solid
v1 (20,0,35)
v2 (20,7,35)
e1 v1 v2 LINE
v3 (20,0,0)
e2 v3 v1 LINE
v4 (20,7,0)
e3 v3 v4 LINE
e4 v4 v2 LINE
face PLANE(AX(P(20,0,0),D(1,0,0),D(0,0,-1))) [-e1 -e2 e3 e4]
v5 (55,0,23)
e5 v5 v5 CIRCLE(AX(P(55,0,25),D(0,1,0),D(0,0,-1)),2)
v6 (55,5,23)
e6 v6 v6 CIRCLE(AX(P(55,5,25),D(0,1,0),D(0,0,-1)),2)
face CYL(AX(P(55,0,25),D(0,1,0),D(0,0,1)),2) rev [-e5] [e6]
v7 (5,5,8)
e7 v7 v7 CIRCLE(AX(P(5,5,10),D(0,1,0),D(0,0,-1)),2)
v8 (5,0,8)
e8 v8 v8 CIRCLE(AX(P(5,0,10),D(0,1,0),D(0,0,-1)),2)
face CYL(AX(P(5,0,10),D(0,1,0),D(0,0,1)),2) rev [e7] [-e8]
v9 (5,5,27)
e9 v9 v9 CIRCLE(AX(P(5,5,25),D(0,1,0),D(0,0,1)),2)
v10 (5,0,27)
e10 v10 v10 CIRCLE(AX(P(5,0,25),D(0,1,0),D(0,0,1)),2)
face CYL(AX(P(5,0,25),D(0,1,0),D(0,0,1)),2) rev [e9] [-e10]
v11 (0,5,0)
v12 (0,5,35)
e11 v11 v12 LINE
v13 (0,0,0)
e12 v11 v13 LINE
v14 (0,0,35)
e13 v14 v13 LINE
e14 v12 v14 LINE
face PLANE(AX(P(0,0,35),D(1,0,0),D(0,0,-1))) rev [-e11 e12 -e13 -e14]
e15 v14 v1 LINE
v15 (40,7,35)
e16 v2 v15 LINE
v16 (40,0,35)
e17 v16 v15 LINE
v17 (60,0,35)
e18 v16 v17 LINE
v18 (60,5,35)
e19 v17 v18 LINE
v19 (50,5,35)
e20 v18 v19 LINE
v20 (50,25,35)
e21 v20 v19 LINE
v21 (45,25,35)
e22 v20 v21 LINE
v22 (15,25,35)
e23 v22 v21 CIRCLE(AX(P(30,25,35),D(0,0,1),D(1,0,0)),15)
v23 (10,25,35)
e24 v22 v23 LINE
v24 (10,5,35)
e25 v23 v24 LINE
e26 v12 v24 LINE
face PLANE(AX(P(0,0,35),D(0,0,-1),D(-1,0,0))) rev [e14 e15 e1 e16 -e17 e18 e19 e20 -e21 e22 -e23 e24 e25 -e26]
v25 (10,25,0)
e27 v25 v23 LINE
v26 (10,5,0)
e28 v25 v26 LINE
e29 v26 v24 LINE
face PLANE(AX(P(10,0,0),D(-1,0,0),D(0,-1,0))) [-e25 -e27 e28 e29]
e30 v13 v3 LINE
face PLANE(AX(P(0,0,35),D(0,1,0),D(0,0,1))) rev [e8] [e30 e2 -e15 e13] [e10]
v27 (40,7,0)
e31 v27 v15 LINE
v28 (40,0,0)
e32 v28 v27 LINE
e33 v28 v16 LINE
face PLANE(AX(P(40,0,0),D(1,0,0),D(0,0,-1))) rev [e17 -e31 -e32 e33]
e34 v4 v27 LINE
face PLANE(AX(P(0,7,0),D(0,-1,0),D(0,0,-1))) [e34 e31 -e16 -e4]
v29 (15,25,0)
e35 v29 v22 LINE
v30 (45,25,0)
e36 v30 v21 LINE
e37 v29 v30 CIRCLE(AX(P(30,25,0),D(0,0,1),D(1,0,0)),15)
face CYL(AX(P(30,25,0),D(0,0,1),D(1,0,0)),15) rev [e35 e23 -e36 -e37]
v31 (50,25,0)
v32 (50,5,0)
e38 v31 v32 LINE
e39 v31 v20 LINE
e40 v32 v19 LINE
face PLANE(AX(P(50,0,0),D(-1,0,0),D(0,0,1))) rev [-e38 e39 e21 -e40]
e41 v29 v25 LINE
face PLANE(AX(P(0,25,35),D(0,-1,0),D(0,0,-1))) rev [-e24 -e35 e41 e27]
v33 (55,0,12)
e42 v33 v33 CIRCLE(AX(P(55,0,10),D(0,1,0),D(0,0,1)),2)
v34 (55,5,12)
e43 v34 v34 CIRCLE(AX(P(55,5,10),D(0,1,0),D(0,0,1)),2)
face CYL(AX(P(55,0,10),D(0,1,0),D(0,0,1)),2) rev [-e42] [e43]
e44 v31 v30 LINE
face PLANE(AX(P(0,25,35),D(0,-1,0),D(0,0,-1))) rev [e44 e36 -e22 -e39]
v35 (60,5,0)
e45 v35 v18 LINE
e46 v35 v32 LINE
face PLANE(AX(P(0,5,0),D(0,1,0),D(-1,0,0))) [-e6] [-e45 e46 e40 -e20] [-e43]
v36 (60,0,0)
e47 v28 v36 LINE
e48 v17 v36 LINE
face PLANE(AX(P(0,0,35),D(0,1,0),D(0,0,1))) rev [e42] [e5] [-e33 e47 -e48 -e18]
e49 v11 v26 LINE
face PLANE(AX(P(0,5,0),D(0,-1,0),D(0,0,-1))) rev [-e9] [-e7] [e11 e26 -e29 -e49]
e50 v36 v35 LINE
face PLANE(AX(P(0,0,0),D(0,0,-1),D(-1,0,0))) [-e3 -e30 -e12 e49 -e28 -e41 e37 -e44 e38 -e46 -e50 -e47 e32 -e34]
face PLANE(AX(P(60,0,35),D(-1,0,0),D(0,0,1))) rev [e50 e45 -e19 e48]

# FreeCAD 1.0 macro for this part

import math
import FreeCAD as App
import Part
import Sketcher

doc = App.newDocument("Part")
body = doc.addObject("PartDesign::Body", "Body")

sketch1 = doc.addObject("Sketcher::SketchObject", "Sketch")
body.addObject(sketch1)
sketch1.AttachmentSupport = (doc.XY_Plane, [""])
sketch1.MapMode = "FlatFace"
sketch1.addGeometry(Part.LineSegment(App.Vector(0, 25, 0), App.Vector(0, 0, 0)), False)
sketch1.addGeometry(Part.LineSegment(App.Vector(0, 0, 0), App.Vector(60, 0, 0)), False)
sketch1.addGeometry(Part.LineSegment(App.Vector(60, 0, 0), App.Vector(60, 25, 0)), False)
sketch1.addGeometry(Part.LineSegment(App.Vector(60, 25, 0), App.Vector(0, 25, 0)), False)
sketch1.addConstraint(Sketcher.Constraint("Coincident", 0, 2, 1, 1))
sketch1.addConstraint(Sketcher.Constraint("Coincident", 1, 2, 2, 1))
sketch1.addConstraint(Sketcher.Constraint("Coincident", 2, 2, 3, 1))
sketch1.addConstraint(Sketcher.Constraint("Coincident", 3, 2, 0, 1))
sketch1.addConstraint(Sketcher.Constraint("Vertical", 0))
sketch1.addConstraint(Sketcher.Constraint("Horizontal", 1))
sketch1.addConstraint(Sketcher.Constraint("Vertical", 2))
sketch1.addConstraint(Sketcher.Constraint("Horizontal", 3))
sketch1.addConstraint(Sketcher.Constraint("Coincident", 0, 2, -1, 1))
sketch1.addConstraint(Sketcher.Constraint("DistanceX", 1, 1, 1, 2, 60.0))
sketch1.addConstraint(Sketcher.Constraint("DistanceY", 0, 2, 0, 1, 25.0))
pad1 = doc.addObject("PartDesign::Pad", "Pad")
body.addObject(pad1)
pad1.Profile = sketch1
pad1.Length = 35

sketch2 = doc.addObject("Sketcher::SketchObject", "Sketch001")
body.addObject(sketch2)
sketch2.AttachmentSupport = (doc.XY_Plane, [""])
sketch2.MapMode = "FlatFace"
sketch2.AttachmentOffset = App.Placement(App.Vector(0, 0, 35), App.Rotation())
sketch2.addGeometry(Part.LineSegment(App.Vector(50, 25, 0), App.Vector(50, 5, 0)), False)
sketch2.addGeometry(Part.LineSegment(App.Vector(50, 5, 0), App.Vector(60, 5, 0)), False)
sketch2.addGeometry(Part.LineSegment(App.Vector(60, 5, 0), App.Vector(60, 25, 0)), False)
sketch2.addGeometry(Part.LineSegment(App.Vector(60, 25, 0), App.Vector(50, 25, 0)), False)
sketch2.addGeometry(Part.LineSegment(App.Vector(45, 25, 0), App.Vector(15, 25, 0)), False)
sketch2.addGeometry(Part.ArcOfCircle(Part.Circle(App.Vector(30, 25, 0), App.Vector(0, 0, 1), 15), math.radians(180), math.radians(360)), False)
sketch2.addGeometry(Part.LineSegment(App.Vector(0, 25, 0), App.Vector(0, 5, 0)), False)
sketch2.addGeometry(Part.LineSegment(App.Vector(0, 5, 0), App.Vector(10, 5, 0)), False)
sketch2.addGeometry(Part.LineSegment(App.Vector(10, 5, 0), App.Vector(10, 25, 0)), False)
sketch2.addGeometry(Part.LineSegment(App.Vector(10, 25, 0), App.Vector(0, 25, 0)), False)
sketch2.addGeometry(Part.LineSegment(App.Vector(20, 7, 0), App.Vector(20, 0, 0)), False)
sketch2.addGeometry(Part.LineSegment(App.Vector(20, 0, 0), App.Vector(40, 0, 0)), False)
sketch2.addGeometry(Part.LineSegment(App.Vector(40, 0, 0), App.Vector(40, 7, 0)), False)
sketch2.addGeometry(Part.LineSegment(App.Vector(40, 7, 0), App.Vector(20, 7, 0)), False)
sketch2.addConstraint(Sketcher.Constraint("Coincident", 0, 2, 1, 1))
sketch2.addConstraint(Sketcher.Constraint("Coincident", 1, 2, 2, 1))
sketch2.addConstraint(Sketcher.Constraint("Coincident", 2, 2, 3, 1))
sketch2.addConstraint(Sketcher.Constraint("Coincident", 3, 2, 0, 1))
sketch2.addConstraint(Sketcher.Constraint("Coincident", 4, 1, 5, 2))
sketch2.addConstraint(Sketcher.Constraint("Coincident", 5, 1, 4, 2))
sketch2.addConstraint(Sketcher.Constraint("Coincident", 6, 2, 7, 1))
sketch2.addConstraint(Sketcher.Constraint("Coincident", 7, 2, 8, 1))
sketch2.addConstraint(Sketcher.Constraint("Coincident", 8, 2, 9, 1))
sketch2.addConstraint(Sketcher.Constraint("Coincident", 9, 2, 6, 1))
sketch2.addConstraint(Sketcher.Constraint("Coincident", 10, 2, 11, 1))
sketch2.addConstraint(Sketcher.Constraint("Coincident", 11, 2, 12, 1))
sketch2.addConstraint(Sketcher.Constraint("Coincident", 12, 2, 13, 1))
sketch2.addConstraint(Sketcher.Constraint("Coincident", 13, 2, 10, 1))
sketch2.addConstraint(Sketcher.Constraint("Vertical", 0))
sketch2.addConstraint(Sketcher.Constraint("Horizontal", 1))
sketch2.addConstraint(Sketcher.Constraint("Vertical", 2))
sketch2.addConstraint(Sketcher.Constraint("Horizontal", 3))
sketch2.addConstraint(Sketcher.Constraint("Horizontal", 4))
sketch2.addConstraint(Sketcher.Constraint("Vertical", 6))
sketch2.addConstraint(Sketcher.Constraint("Horizontal", 7))
sketch2.addConstraint(Sketcher.Constraint("Vertical", 8))
sketch2.addConstraint(Sketcher.Constraint("Horizontal", 9))
sketch2.addConstraint(Sketcher.Constraint("Vertical", 10))
sketch2.addConstraint(Sketcher.Constraint("Horizontal", 11))
sketch2.addConstraint(Sketcher.Constraint("Vertical", 12))
sketch2.addConstraint(Sketcher.Constraint("Horizontal", 13))
sketch2.addConstraint(Sketcher.Constraint("PointOnObject", 6, 2, -2))
sketch2.addConstraint(Sketcher.Constraint("PointOnObject", 10, 2, -1))
sketch2.addConstraint(Sketcher.Constraint("Horizontal", 5, 3, 2, 2))
sketch2.addConstraint(Sketcher.Constraint("Horizontal", 3, 2, 4, 1))
sketch2.addConstraint(Sketcher.Constraint("Horizontal", 1, 2, 6, 2))
sketch2.addConstraint(Sketcher.Constraint("Horizontal", 5, 1, 8, 2))
sketch2.addConstraint(Sketcher.Constraint("Equal", 3, 7))
sketch2.addConstraint(Sketcher.Constraint("Equal", 13, 0))
sketch2.addConstraint(Sketcher.Constraint("Radius", 5, 15.0))
sketch2.addConstraint(Sketcher.Constraint("DistanceX", 1, 1, 1, 2, 10.0))
sketch2.addConstraint(Sketcher.Constraint("DistanceX", 11, 1, 11, 2, 20.0))
sketch2.addConstraint(Sketcher.Constraint("DistanceY", 10, 2, 10, 1, 7.0))
sketch2.addConstraint(Sketcher.Constraint("DistanceX", -1, 1, 5, 3, 30.0))
sketch2.addConstraint(Sketcher.Constraint("DistanceY", -1, 1, 5, 3, 25.0))
sketch2.addConstraint(Sketcher.Constraint("DistanceX", -1, 1, 0, 2, 50.0))
sketch2.addConstraint(Sketcher.Constraint("DistanceX", -1, 1, 10, 2, 20.0))
pocket1 = doc.addObject("PartDesign::Pocket", "Pocket")
body.addObject(pocket1)
pocket1.Profile = sketch2
pocket1.Type = "ThroughAll"

sketch3 = doc.addObject("Sketcher::SketchObject", "Sketch002")
body.addObject(sketch3)
sketch3.AttachmentSupport = (doc.XZ_Plane, [""])
sketch3.MapMode = "FlatFace"
sketch3.AttachmentOffset = App.Placement(App.Vector(0, 0, -5), App.Rotation())
sketch3.addGeometry(Part.Circle(App.Vector(5, 25, 0), App.Vector(0, 0, 1), 2), False)
sketch3.addGeometry(Part.Circle(App.Vector(5, 10, 0), App.Vector(0, 0, 1), 2), False)
sketch3.addGeometry(Part.Circle(App.Vector(55, 10, 0), App.Vector(0, 0, 1), 2), False)
sketch3.addGeometry(Part.Circle(App.Vector(55, 25, 0), App.Vector(0, 0, 1), 2), False)
sketch3.addConstraint(Sketcher.Constraint("Equal", 0, 1))
sketch3.addConstraint(Sketcher.Constraint("Equal", 1, 2))
sketch3.addConstraint(Sketcher.Constraint("Equal", 2, 3))
sketch3.addConstraint(Sketcher.Constraint("Horizontal", 1, 3, 2, 3))
sketch3.addConstraint(Sketcher.Constraint("Horizontal", 0, 3, 3, 3))
sketch3.addConstraint(Sketcher.Constraint("Vertical", 0, 3, 1, 3))
sketch3.addConstraint(Sketcher.Constraint("Vertical", 2, 3, 3, 3))
sketch3.addConstraint(Sketcher.Constraint("Diameter", 0, 4.0))
sketch3.addConstraint(Sketcher.Constraint("DistanceX", -1, 1, 0, 3, 5.0))
sketch3.addConstraint(Sketcher.Constraint("DistanceY", -1, 1, 0, 3, 25.0))
sketch3.addConstraint(Sketcher.Constraint("DistanceY", -1, 1, 1, 3, 10.0))
sketch3.addConstraint(Sketcher.Constraint("DistanceX", -1, 1, 2, 3, 55.0))
pocket2 = doc.addObject("PartDesign::Pocket", "Pocket001")
body.addObject(pocket2)
pocket2.Profile = sketch3
pocket2.Type = "ThroughAll"
pocket2.Reversed = True

doc.recompute()
